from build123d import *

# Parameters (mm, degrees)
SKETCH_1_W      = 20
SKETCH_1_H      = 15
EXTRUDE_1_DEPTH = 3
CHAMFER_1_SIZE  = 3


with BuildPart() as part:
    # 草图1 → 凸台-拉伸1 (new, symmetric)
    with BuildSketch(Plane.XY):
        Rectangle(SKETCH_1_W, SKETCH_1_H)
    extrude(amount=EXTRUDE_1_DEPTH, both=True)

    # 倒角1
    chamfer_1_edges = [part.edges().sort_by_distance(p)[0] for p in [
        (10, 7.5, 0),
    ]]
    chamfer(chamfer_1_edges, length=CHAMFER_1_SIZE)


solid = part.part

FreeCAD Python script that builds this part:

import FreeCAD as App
import Part
import Sketcher

V = App.Vector


def edges_at(feature, points):
    """Names of the edges that pass closest to the given points."""
    edges = feature.Shape.Edges
    near = lambda p: min(range(len(edges)), key=lambda i: edges[i].distToShape(Part.Vertex(*p))[0])
    return sorted({f"Edge{near(p) + 1}" for p in points})


def add_polygon(sketch, points):
    """Adds a closed chain of lines whose ends are joined by coincident constraints."""
    first, n = sketch.GeometryCount, len(points)
    for a, b in zip(points, points[1:] + points[:1]):
        sketch.addGeometry(Part.LineSegment(App.Vector(*a, 0), App.Vector(*b, 0)), False)
    for i in range(n):
        sketch.addConstraint(Sketcher.Constraint("Coincident", first + i, 2, first + (i + 1) % n, 1))

doc = App.newDocument("Part")
body = doc.addObject("PartDesign::Body", "Body")

# Sketch on XY plane
sketch1 = doc.addObject("Sketcher::SketchObject", "Sketch")
body.addObject(sketch1)
sketch1.AttachmentSupport = (doc.XY_Plane, [""])
sketch1.MapMode = "FlatFace"
add_polygon(sketch1, [(-10, 8), (-10, -8), (10, -8), (10, 8)])  # lines 0-3
sketch1.addConstraint([
    Sketcher.Constraint("Vertical", 0),
    Sketcher.Constraint("Horizontal", 1),
    Sketcher.Constraint("Vertical", 2),
    Sketcher.Constraint("Horizontal", 3),
    Sketcher.Constraint("Symmetric", 0, 2, 2, 2, -1, 1),
    Sketcher.Constraint("DistanceX", 1, 1, 1, 2, 20.0),
    Sketcher.Constraint("DistanceY", 0, 2, 0, 1, 15.0),
])
pad1 = doc.addObject("PartDesign::Pad", "Pad")
body.addObject(pad1)
pad1.Profile = sketch1
pad1.Length = 6
pad1.Midplane = True
doc.recompute()

chamfer = doc.addObject("PartDesign::Chamfer", "Chamfer")
body.addObject(chamfer)
chamfer.Base = (pad1, edges_at(pad1, [(10, 7.5, 0)]))
chamfer.Size = 3

doc.recompute()
